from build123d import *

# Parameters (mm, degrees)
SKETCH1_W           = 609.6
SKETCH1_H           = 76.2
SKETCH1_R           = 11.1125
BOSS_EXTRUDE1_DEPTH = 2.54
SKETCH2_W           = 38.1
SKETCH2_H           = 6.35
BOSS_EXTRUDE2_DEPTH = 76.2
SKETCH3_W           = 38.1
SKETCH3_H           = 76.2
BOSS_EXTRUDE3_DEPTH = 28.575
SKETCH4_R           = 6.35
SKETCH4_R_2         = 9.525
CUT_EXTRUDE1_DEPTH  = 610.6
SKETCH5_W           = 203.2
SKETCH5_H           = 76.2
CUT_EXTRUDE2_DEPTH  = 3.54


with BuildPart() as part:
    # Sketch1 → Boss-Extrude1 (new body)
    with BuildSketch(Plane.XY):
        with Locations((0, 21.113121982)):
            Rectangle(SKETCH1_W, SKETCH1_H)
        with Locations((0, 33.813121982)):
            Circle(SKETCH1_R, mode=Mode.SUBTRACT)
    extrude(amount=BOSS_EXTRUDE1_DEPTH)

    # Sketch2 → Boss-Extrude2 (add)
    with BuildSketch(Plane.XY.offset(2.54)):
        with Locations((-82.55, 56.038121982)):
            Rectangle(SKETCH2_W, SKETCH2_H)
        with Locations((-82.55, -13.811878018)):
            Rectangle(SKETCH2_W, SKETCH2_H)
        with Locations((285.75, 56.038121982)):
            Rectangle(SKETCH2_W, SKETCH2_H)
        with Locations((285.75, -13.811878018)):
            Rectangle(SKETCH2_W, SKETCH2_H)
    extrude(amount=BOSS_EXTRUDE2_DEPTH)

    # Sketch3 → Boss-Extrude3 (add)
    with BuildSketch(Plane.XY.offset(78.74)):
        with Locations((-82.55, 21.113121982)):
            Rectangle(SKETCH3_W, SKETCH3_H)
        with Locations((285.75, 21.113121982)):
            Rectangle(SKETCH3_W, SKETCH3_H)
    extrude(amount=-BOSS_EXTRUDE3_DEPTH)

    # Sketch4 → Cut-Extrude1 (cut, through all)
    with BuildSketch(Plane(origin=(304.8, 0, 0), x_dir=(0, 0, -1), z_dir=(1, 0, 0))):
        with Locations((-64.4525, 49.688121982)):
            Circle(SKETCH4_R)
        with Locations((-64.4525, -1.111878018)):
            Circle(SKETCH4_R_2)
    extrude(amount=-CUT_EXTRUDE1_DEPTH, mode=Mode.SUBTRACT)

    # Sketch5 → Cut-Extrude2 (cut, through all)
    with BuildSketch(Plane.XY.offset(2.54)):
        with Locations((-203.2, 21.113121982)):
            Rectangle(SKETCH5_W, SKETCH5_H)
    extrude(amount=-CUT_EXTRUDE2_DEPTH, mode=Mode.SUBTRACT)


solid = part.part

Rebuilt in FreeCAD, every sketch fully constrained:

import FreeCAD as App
import Part
import Sketcher

V = App.Vector
Q = App.Units.Quantity


def add_polygon(sketch, points):
    """Adds a closed chain of lines whose ends are joined by coincident constraints."""
    first, n = sketch.GeometryCount, len(points)
    for a, b in zip(points, points[1:] + points[:1]):
        sketch.addGeometry(Part.LineSegment(App.Vector(*a, 0), App.Vector(*b, 0)), False)
    for i in range(n):
        sketch.addConstraint(Sketcher.Constraint("Coincident", first + i, 2, first + (i + 1) % n, 1))

doc = App.newDocument("Part")
params = doc.addObject("Spreadsheet::Sheet", "Params")
for row, (alias, value) in enumerate([
    ("sketch1_width", "24 in"),
    ("sketch1_height", "3 in"),
    ("sketch1_diameter", "0.875 in"),
    ("pad1_length", "0.1 in"),
    ("sketch2_width", "1.5 in"),
    ("sketch2_height", "0.25 in"),
    ("pad2_length", "3 in"),
    ("sketch3_height", "3 in"),
    ("sketch3_width", "1.5 in"),
    ("pad3_length", "1.125 in"),
    ("sketch4_diameter", "0.5 in"),
    ("sketch4_diameter2", "0.75 in"),
    ("sketch5_width", "8 in"),
    ("sketch5_height", "3 in"),
], start=1):
    params.set(f"A{row}", alias)
    params.set(f"B{row}", "=" + value)
    params.setAlias(f"B{row}", alias)

body = doc.addObject("PartDesign::Body", "Body")

# Sketch on XY plane
sketch1 = doc.addObject("Sketcher::SketchObject", "Sketch")
body.addObject(sketch1)
sketch1.AttachmentSupport = (doc.XY_Plane, [""])
sketch1.MapMode = "FlatFace"
add_polygon(sketch1, [(-305, 59), (-305, -17), (305, -17), (305, 59)])  # lines 0-3
sketch1.addGeometry(Part.Circle(V(0, 34, 0), V(0, 0, 1), 11), False)  # 4
sketch1.addConstraint(Sketcher.Constraint("Vertical", 0))
sketch1.addConstraint(Sketcher.Constraint("Horizontal", 1))
sketch1.addConstraint(Sketcher.Constraint("Vertical", 2))
sketch1.addConstraint(Sketcher.Constraint("Horizontal", 3))
sketch1.addConstraint(Sketcher.Constraint("PointOnObject", 4, 3, -2))
sketch1.addConstraint(Sketcher.Constraint("DistanceX", 1, 1, 1, 2, Q("24 in")))
sketch1.addConstraint(Sketcher.Constraint("DistanceY", 0, 2, 0, 1, Q("3 in")))
sketch1.addConstraint(Sketcher.Constraint("Diameter", 4, Q("0.875 in")))
sketch1.addConstraint(Sketcher.Constraint("DistanceX", 0, 2, -1, 1, Q("12 in")))
sketch1.addConstraint(Sketcher.Constraint("DistanceY", 0, 2, 4, 3, Q("2 in")))
sketch1.addConstraint(Sketcher.Constraint("DistanceY", -1, 1, 4, 3, Q("33.813122 mm")))
sketch1.setExpression("Constraints[9]", "Params.sketch1_width")
sketch1.setExpression("Constraints[10]", "Params.sketch1_height")
sketch1.setExpression("Constraints[11]", "Params.sketch1_diameter")
pad1 = doc.addObject("PartDesign::Pad", "Pad")
body.addObject(pad1)
pad1.Profile = sketch1
pad1.setExpression("Length", "Params.pad1_length")

# Sketch on XY plane
sketch2 = doc.addObject("Sketcher::SketchObject", "Sketch001")
body.addObject(sketch2)
sketch2.AttachmentSupport = (doc.XY_Plane, [""])
sketch2.MapMode = "FlatFace"
sketch2.AttachmentOffset = App.Placement(V(0, 0, 0.1 * 25.4), App.Rotation())
add_polygon(sketch2, [(-102, 59), (-102, 53), (-64, 53), (-64, 59)])  # lines 0-3
add_polygon(sketch2, [(-102, -11), (-102, -17), (-64, -17), (-64, -11)])  # lines 4-7
add_polygon(sketch2, [(267, 59), (267, 53), (305, 53), (305, 59)])  # lines 8-11
add_polygon(sketch2, [(267, -11), (267, -17), (305, -17), (305, -11)])  # lines 12-15
sketch2.addConstraint(Sketcher.Constraint("Vertical", 0))
sketch2.addConstraint(Sketcher.Constraint("Horizontal", 1))
sketch2.addConstraint(Sketcher.Constraint("Vertical", 2))
sketch2.addConstraint(Sketcher.Constraint("Horizontal", 3))
sketch2.addConstraint(Sketcher.Constraint("Vertical", 4))
sketch2.addConstraint(Sketcher.Constraint("Horizontal", 5))
sketch2.addConstraint(Sketcher.Constraint("Vertical", 6))
sketch2.addConstraint(Sketcher.Constraint("Horizontal", 7))
sketch2.addConstraint(Sketcher.Constraint("Vertical", 8))
sketch2.addConstraint(Sketcher.Constraint("Horizontal", 9))
sketch2.addConstraint(Sketcher.Constraint("Vertical", 10))
sketch2.addConstraint(Sketcher.Constraint("Horizontal", 11))
sketch2.addConstraint(Sketcher.Constraint("Vertical", 12))
sketch2.addConstraint(Sketcher.Constraint("Horizontal", 13))
sketch2.addConstraint(Sketcher.Constraint("Vertical", 14))
sketch2.addConstraint(Sketcher.Constraint("Horizontal", 15))
sketch2.addConstraint(Sketcher.Constraint("Horizontal", 1, 2, 8, 2))
sketch2.addConstraint(Sketcher.Constraint("Horizontal", 3, 2, 10, 2))
sketch2.addConstraint(Sketcher.Constraint("Horizontal", 5, 2, 12, 2))
sketch2.addConstraint(Sketcher.Constraint("Horizontal", 7, 2, 14, 2))
sketch2.addConstraint(Sketcher.Constraint("Vertical", 3, 2, 4, 2))
sketch2.addConstraint(Sketcher.Constraint("Vertical", 2, 2, 5, 2))
sketch2.addConstraint(Sketcher.Constraint("Vertical", 11, 2, 12, 2))
sketch2.addConstraint(Sketcher.Constraint("Vertical", 10, 2, 13, 2))
sketch2.addConstraint(Sketcher.Constraint("Equal", 7, 9))
sketch2.addConstraint(Sketcher.Constraint("Equal", 2, 4))
sketch2.addConstraint(Sketcher.Constraint("DistanceX", 1, 1, 1, 2, Q("1.5 in")))
sketch2.addConstraint(Sketcher.Constraint("DistanceX", 0, 2, -1, 1, Q("4 in")))
sketch2.addConstraint(Sketcher.Constraint("DistanceX", -1, 1, 9, 2, Q("12 in")))
sketch2.addConstraint(Sketcher.Constraint("DistanceY", 4, 2, 3, 2, Q("3 in")))
sketch2.addConstraint(Sketcher.Constraint("DistanceY", 0, 2, 0, 1, Q("0.25 in")))
sketch2.addConstraint(Sketcher.Constraint("DistanceY", -1, 1, 0, 2, Q("52.863122 mm")))
sketch2.setExpression("Constraints[42]", "Params.sketch2_width")
sketch2.setExpression("Constraints[46]", "Params.sketch2_height")
pad2 = doc.addObject("PartDesign::Pad", "Pad001")
body.addObject(pad2)
pad2.Profile = sketch2
pad2.setExpression("Length", "Params.pad2_length")

# Sketch on XY plane
sketch3 = doc.addObject("Sketcher::SketchObject", "Sketch002")
body.addObject(sketch3)
sketch3.AttachmentSupport = (doc.XY_Plane, [""])
sketch3.MapMode = "FlatFace"
sketch3.AttachmentOffset = App.Placement(V(0, 0, 3.1 * 25.4), App.Rotation())
add_polygon(sketch3, [(-102, 59), (-102, -17), (-64, -17), (-64, 59)])  # lines 0-3
add_polygon(sketch3, [(267, 59), (267, -17), (305, -17), (305, 59)])  # lines 4-7
sketch3.addConstraint(Sketcher.Constraint("Vertical", 0))
sketch3.addConstraint(Sketcher.Constraint("Horizontal", 1))
sketch3.addConstraint(Sketcher.Constraint("Vertical", 2))
sketch3.addConstraint(Sketcher.Constraint("Horizontal", 3))
sketch3.addConstraint(Sketcher.Constraint("Vertical", 4))
sketch3.addConstraint(Sketcher.Constraint("Horizontal", 5))
sketch3.addConstraint(Sketcher.Constraint("Vertical", 6))
sketch3.addConstraint(Sketcher.Constraint("Horizontal", 7))
sketch3.addConstraint(Sketcher.Constraint("Horizontal", 1, 2, 4, 2))
sketch3.addConstraint(Sketcher.Constraint("Horizontal", 3, 2, 6, 2))
sketch3.addConstraint(Sketcher.Constraint("Equal", 3, 5))
sketch3.addConstraint(Sketcher.Constraint("DistanceY", 0, 2, 0, 1, Q("3 in")))
sketch3.addConstraint(Sketcher.Constraint("DistanceX", 1, 1, 1, 2, Q("1.5 in")))
sketch3.addConstraint(Sketcher.Constraint("DistanceX", 0, 2, -1, 1, Q("4 in")))
sketch3.addConstraint(Sketcher.Constraint("DistanceX", -1, 1, 5, 2, Q("12 in")))
sketch3.addConstraint(Sketcher.Constraint("DistanceY", 0, 2, -1, 1, Q("16.986878 mm")))
sketch3.setExpression("Constraints[19]", "Params.sketch3_height")
sketch3.setExpression("Constraints[20]", "Params.sketch3_width")
pad3 = doc.addObject("PartDesign::Pad", "Pad002")
body.addObject(pad3)
pad3.Profile = sketch3
pad3.setExpression("Length", "Params.pad3_length")
pad3.Reversed = True

# Sketch on YZ plane
sketch4 = doc.addObject("Sketcher::SketchObject", "Sketch003")
body.addObject(sketch4)
sketch4.AttachmentSupport = (doc.YZ_Plane, [""])
sketch4.MapMode = "FlatFace"
sketch4.AttachmentOffset = App.Placement(V(0, 0, 12 * 25.4), App.Rotation())
sketch4.addGeometry(Part.Circle(V(50, 64, 0), V(0, 0, 1), 6), False)
sketch4.addGeometry(Part.Circle(V(-1, 64, 0), V(0, 0, 1), 10), False)
sketch4.addConstraint(Sketcher.Constraint("Horizontal", 0, 3, 1, 3))
sketch4.addConstraint(Sketcher.Constraint("Diameter", 0, Q("0.5 in")))
sketch4.addConstraint(Sketcher.Constraint("Diameter", 1, Q("0.75 in")))
sketch4.addConstraint(Sketcher.Constraint("DistanceX", 1, 3, 0, 3, Q("2 in")))
sketch4.addConstraint(Sketcher.Constraint("DistanceY", -1, 1, 0, 3, Q("2.5375 in")))
sketch4.addConstraint(Sketcher.Constraint("DistanceX", -1, 1, 0, 3, Q("49.688122 mm")))
sketch4.setExpression("Constraints[1]", "Params.sketch4_diameter")
sketch4.setExpression("Constraints[2]", "Params.sketch4_diameter2")
pocket1 = doc.addObject("PartDesign::Pocket", "Pocket")
body.addObject(pocket1)
pocket1.Profile = sketch4
pocket1.Type = "ThroughAll"

# Sketch on XY plane
sketch5 = doc.addObject("Sketcher::SketchObject", "Sketch004")
body.addObject(sketch5)
sketch5.AttachmentSupport = (doc.XY_Plane, [""])
sketch5.MapMode = "FlatFace"
sketch5.AttachmentOffset = App.Placement(V(0, 0, 0.1 * 25.4), App.Rotation())
add_polygon(sketch5, [(-305, 59), (-305, -17), (-102, -17), (-102, 59)])  # lines 0-3
sketch5.addConstraint(Sketcher.Constraint("Vertical", 0))
sketch5.addConstraint(Sketcher.Constraint("Horizontal", 1))
sketch5.addConstraint(Sketcher.Constraint("Vertical", 2))
sketch5.addConstraint(Sketcher.Constraint("Horizontal", 3))
sketch5.addConstraint(Sketcher.Constraint("DistanceX", 1, 1, 1, 2, Q("8 in")))
sketch5.addConstraint(Sketcher.Constraint("DistanceY", 0, 2, 0, 1, Q("3 in")))
sketch5.addConstraint(Sketcher.Constraint("DistanceX", 0, 2, -1, 1, Q("12 in")))
sketch5.addConstraint(Sketcher.Constraint("DistanceY", 0, 2, -1, 1, Q("16.986878 mm")))
sketch5.setExpression("Constraints[8]", "Params.sketch5_width")
sketch5.setExpression("Constraints[9]", "Params.sketch5_height")
pocket2 = doc.addObject("PartDesign::Pocket", "Pocket001")
body.addObject(pocket2)
pocket2.Profile = sketch5
pocket2.Type = "ThroughAll"

doc.recompute()
